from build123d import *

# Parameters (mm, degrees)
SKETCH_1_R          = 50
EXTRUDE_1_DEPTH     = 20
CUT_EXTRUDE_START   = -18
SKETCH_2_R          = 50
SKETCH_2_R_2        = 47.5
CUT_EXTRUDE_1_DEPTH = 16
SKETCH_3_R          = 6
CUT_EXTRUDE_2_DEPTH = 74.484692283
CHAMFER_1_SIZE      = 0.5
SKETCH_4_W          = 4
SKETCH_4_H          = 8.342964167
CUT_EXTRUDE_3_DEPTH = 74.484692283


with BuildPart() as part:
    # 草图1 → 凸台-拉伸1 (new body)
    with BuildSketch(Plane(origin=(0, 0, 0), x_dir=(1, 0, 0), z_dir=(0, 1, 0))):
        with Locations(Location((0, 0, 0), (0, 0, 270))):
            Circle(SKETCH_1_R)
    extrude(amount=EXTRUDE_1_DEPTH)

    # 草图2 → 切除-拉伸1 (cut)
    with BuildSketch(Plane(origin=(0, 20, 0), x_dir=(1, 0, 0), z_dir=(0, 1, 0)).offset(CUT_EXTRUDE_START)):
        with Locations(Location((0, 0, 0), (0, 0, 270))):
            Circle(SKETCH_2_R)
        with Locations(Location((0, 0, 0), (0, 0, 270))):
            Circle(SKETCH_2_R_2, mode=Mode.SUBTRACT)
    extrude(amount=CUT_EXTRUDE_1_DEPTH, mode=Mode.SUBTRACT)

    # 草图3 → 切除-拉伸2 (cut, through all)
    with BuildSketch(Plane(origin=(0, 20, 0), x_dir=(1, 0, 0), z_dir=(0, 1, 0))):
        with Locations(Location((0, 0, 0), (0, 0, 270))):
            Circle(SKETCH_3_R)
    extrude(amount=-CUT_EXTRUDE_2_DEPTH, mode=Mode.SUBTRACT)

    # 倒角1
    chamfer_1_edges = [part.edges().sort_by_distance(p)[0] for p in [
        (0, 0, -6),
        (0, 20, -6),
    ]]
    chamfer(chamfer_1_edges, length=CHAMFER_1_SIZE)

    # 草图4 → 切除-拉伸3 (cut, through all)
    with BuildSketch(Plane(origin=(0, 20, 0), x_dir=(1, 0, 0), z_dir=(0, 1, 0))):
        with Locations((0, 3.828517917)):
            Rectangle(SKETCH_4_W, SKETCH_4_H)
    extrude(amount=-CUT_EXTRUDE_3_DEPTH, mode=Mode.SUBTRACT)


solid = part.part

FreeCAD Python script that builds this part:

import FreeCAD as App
import Part
import Sketcher

V = App.Vector
Q = App.Units.Quantity


def edges_at(feature, points):
    """Names of the edges that pass closest to the given points."""
    edges = feature.Shape.Edges
    near = lambda p: min(range(len(edges)), key=lambda i: edges[i].distToShape(Part.Vertex(*p))[0])
    return sorted({f"Edge{near(p) + 1}" for p in points})

doc = App.newDocument("Part")
body = doc.addObject("PartDesign::Body", "Body")

# Sketch on XZ plane
sketch1 = body.newObject("Sketcher::SketchObject", "Sketch")
sketch1.AttachmentSupport = (doc.getObject("XZ_Plane"), [""])
sketch1.MapMode = "FlatFace"
sketch1.addGeometry(Part.Circle(V(0, 0, 0), V(0, 0, 1), 50), False)
sketch1.addConstraint([
    Sketcher.Constraint("Coincident", 0, 3, -1, 1),
    Sketcher.Constraint("Diameter", 0, Q("100 mm")),
])
pad1 = body.newObject("PartDesign::Pad", "Pad")
pad1.Profile = sketch1
pad1.Length = 20
pad1.Reversed = True

# Sketch on XZ plane
sketch2 = body.newObject("Sketcher::SketchObject", "Sketch001")
sketch2.AttachmentSupport = (doc.getObject("XZ_Plane"), [""])
sketch2.MapMode = "FlatFace"
sketch2.AttachmentOffset = App.Placement(V(0, 0, -2), App.Rotation())
sketch2.addGeometry([
    Part.Circle(V(0, 0, 0), V(0, 0, 1), 50),
    Part.Circle(V(0, 0, 0), V(0, 0, 1), 48),
], False)
sketch2.addConstraint([
    Sketcher.Constraint("Coincident", 0, 3, -1, 1),
    Sketcher.Constraint("Coincident", 1, 3, -1, 1),
    Sketcher.Constraint("Diameter", 0, Q("100 mm")),
    Sketcher.Constraint("Diameter", 1, Q("95 mm")),
])
pocket1 = body.newObject("PartDesign::Pocket", "Pocket")
pocket1.Profile = sketch2
pocket1.Length = 16

# Sketch on XZ plane
sketch3 = body.newObject("Sketcher::SketchObject", "Sketch002")
sketch3.AttachmentSupport = (doc.getObject("XZ_Plane"), [""])
sketch3.MapMode = "FlatFace"
sketch3.AttachmentOffset = App.Placement(V(0, 0, -20), App.Rotation())
sketch3.addGeometry(Part.Circle(V(0, 0, 0), V(0, 0, 1), 6), False)
sketch3.addConstraint([
    Sketcher.Constraint("Coincident", 0, 3, -1, 1),
    Sketcher.Constraint("Diameter", 0, Q("12 mm")),
])
pocket2 = body.newObject("PartDesign::Pocket", "Pocket001")
pocket2.Profile = sketch3
pocket2.Type = "ThroughAll"
pocket2.Reversed = True
doc.recompute()

chamfer = body.newObject("PartDesign::Chamfer", "Chamfer")
chamfer.Base = (pocket2, edges_at(pocket2, [(0, 0, -6), (0, 20, -6)]))
chamfer.Size = 0.5

# Sketch on XZ plane
sketch4 = body.newObject("Sketcher::SketchObject", "Sketch003")
sketch4.AttachmentSupport = (doc.getObject("XZ_Plane"), [""])
sketch4.MapMode = "FlatFace"
sketch4.AttachmentOffset = App.Placement(V(0, 0, -20), App.Rotation())
sketch4.addGeometry([
    Part.LineSegment(V(-2, -8, 0), V(-2, 0.3, 0)),
    Part.LineSegment(V(-2, 0.3, 0), V(2, 0.3, 0)),
    Part.LineSegment(V(2, 0.3, 0), V(2, -8, 0)),
    Part.LineSegment(V(2, -8, 0), V(-2, -8, 0)),
], False)
sketch4.addConstraint([
    Sketcher.Constraint("Coincident", 0, 2, 1, 1),
    Sketcher.Constraint("Coincident", 1, 2, 2, 1),
    Sketcher.Constraint("Coincident", 2, 2, 3, 1),
    Sketcher.Constraint("Coincident", 3, 2, 0, 1),
    Sketcher.Constraint("Vertical", 0),
    Sketcher.Constraint("Horizontal", 1),
    Sketcher.Constraint("Vertical", 2),
    Sketcher.Constraint("Horizontal", 3),
    Sketcher.Constraint("DistanceX", 1, 1, 1, 2, Q("4 mm")),
    Sketcher.Constraint("DistanceX", 0, 2, -1, 1, Q("2 mm")),
    Sketcher.Constraint("DistanceY", 2, 2, -1, 1, Q("8 mm")),
    Sketcher.Constraint("DistanceY", 0, 1, 0, 2, Q("8.342964 mm")),
])
pocket3 = body.newObject("PartDesign::Pocket", "Pocket002")
pocket3.Profile = sketch4
pocket3.Type = "ThroughAll"
pocket3.Reversed = True

doc.recompute()
